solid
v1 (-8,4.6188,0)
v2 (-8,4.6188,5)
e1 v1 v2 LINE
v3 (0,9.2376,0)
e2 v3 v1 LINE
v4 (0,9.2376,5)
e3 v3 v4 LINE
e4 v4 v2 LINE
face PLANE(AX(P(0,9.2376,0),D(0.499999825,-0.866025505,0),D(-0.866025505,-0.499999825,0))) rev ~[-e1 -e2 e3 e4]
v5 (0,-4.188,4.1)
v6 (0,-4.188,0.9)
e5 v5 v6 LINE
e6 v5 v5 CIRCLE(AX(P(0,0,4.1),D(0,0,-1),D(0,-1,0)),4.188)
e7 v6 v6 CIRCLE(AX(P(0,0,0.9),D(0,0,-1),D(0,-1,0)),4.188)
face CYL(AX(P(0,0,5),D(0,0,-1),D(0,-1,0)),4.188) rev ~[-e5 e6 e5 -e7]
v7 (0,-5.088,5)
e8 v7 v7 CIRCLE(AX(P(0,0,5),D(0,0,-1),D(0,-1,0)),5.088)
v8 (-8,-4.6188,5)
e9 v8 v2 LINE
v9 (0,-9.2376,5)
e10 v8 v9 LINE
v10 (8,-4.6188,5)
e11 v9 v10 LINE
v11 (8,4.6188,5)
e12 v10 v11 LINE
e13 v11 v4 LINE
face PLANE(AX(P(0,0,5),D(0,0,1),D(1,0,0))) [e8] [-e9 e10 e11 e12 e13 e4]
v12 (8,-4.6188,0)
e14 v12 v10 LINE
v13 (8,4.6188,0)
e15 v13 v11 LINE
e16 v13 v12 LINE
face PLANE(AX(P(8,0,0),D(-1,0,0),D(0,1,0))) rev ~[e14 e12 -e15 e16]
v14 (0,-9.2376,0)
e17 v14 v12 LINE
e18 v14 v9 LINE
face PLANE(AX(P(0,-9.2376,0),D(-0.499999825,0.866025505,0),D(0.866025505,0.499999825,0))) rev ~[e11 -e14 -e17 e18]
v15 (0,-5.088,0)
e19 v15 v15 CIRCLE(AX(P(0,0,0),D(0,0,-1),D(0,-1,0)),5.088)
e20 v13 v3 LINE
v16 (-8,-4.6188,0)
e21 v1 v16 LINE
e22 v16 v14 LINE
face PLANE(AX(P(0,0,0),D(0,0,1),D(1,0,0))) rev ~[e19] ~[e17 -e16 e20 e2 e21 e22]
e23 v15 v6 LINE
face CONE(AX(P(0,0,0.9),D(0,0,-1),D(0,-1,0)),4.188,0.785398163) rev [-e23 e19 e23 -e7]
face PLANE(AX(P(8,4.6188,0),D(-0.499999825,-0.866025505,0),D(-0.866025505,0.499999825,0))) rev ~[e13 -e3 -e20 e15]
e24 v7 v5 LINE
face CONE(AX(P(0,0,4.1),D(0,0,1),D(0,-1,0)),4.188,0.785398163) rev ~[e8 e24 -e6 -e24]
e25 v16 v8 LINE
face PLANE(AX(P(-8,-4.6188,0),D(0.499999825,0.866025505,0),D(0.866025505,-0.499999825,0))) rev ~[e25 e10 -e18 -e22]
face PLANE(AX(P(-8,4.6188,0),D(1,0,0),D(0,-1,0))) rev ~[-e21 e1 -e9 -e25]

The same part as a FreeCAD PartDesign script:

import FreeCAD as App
import Part
import Sketcher
Q = App.Units.Quantity


def edges_at(feature, points):
    """Names of the edges that pass closest to the given points."""
    edges = feature.Shape.Edges
    near = lambda p: min(range(len(edges)), key=lambda i: edges[i].distToShape(Part.Vertex(*p))[0])
    return sorted({f"Edge{near(p) + 1}" for p in points})

doc = App.newDocument("Part")
body = doc.addObject("PartDesign::Body", "Body")

# Sketch on XY plane
sketch1 = body.newObject("Sketcher::SketchObject", "Sketch")
sketch1.AttachmentSupport = (doc.getObject("XY_Plane"), [""])
sketch1.MapMode = "FlatFace"
sketch1.addGeometry([
    Part.LineSegment(App.Vector(0, 9, 0), App.Vector(-8, 5, 0)),  # 0
    Part.LineSegment(App.Vector(-8, 5, 0), App.Vector(-8, -5, 0)),  # 1
    Part.LineSegment(App.Vector(-8, -5, 0), App.Vector(0, -9, 0)),  # 2
    Part.LineSegment(App.Vector(0, -9, 0), App.Vector(8, -5, 0)),  # 3
    Part.LineSegment(App.Vector(8, -5, 0), App.Vector(8, 5, 0)),  # 4
    Part.LineSegment(App.Vector(8, 5, 0), App.Vector(0, 9, 0)),  # 5
], False)
sketch1.addConstraint([
    Sketcher.Constraint("Coincident", 0, 2, 1, 1),
    Sketcher.Constraint("Coincident", 1, 2, 2, 1),
    Sketcher.Constraint("Coincident", 2, 2, 3, 1),
    Sketcher.Constraint("Coincident", 3, 2, 4, 1),
    Sketcher.Constraint("Coincident", 4, 2, 5, 1),
    Sketcher.Constraint("Coincident", 5, 2, 0, 1),
    Sketcher.Constraint("Vertical", 1),
    Sketcher.Constraint("Vertical", 4),
    Sketcher.Constraint("Symmetric", 0, 2, 3, 2, -1, 1),
    Sketcher.Constraint("Symmetric", 2, 2, 5, 2, -1, 1),
    Sketcher.Constraint("PointOnObject", 2, 2, -2),
    Sketcher.Constraint("Parallel", 2, 5),
    Sketcher.Constraint("Horizontal", 1, 2, 3, 2),
    Sketcher.Constraint("DistanceX", 1, 2, 3, 2, 16.0),
    Sketcher.Constraint("Angle", 0, Q("-150 deg")),
    Sketcher.Constraint("DistanceY", 1, 2, 1, 1, 9.2376),
])
pad1 = body.newObject("PartDesign::Pad", "Pad")
pad1.Profile = sketch1
pad1.Length = 5

# Sketch on XY plane
sketch2 = body.newObject("Sketcher::SketchObject", "Sketch001")
sketch2.AttachmentSupport = (doc.getObject("XY_Plane"), [""])
sketch2.MapMode = "FlatFace"
sketch2.AttachmentOffset = App.Placement(App.Vector(0, 0, 5), App.Rotation())
sketch2.addGeometry(Part.Circle(App.Vector(0, 0, 0), App.Vector(0, 0, 1), 4.2), False)
sketch2.addConstraint([
    Sketcher.Constraint("Coincident", 0, 3, -1, 1),
    Sketcher.Constraint("Diameter", 0, 8.376),
])
doc.recompute()
hole = body.newObject("PartDesign::Hole", "Hole")
hole.Profile = sketch2
hole.ThreadType = "None"
hole.Diameter = 8.376
hole.DepthType = "ThroughAll"
doc.recompute()

chamfer = body.newObject("PartDesign::Chamfer", "Chamfer")
chamfer.Base = (hole, edges_at(hole, [(0, 4.188, 5), (0, 4.188, 0)]))
chamfer.Size = 0.9

doc.recompute()
